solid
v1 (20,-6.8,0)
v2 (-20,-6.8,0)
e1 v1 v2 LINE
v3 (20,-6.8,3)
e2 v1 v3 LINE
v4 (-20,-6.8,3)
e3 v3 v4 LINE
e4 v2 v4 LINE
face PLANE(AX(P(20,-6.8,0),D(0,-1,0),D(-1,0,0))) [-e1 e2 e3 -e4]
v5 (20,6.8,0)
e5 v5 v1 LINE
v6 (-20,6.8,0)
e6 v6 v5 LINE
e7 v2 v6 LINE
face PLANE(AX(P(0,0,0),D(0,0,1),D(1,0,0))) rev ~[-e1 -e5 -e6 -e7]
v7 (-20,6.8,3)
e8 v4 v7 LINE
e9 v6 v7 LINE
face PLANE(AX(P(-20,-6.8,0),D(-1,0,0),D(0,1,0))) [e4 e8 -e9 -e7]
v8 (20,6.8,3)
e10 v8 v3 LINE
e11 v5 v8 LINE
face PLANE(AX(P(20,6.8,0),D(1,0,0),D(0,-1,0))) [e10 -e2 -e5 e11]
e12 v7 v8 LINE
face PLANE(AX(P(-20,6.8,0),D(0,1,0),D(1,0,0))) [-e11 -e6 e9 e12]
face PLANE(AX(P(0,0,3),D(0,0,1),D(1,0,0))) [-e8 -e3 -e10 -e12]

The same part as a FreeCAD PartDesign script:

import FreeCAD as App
import Part
import Sketcher


def add_polygon(sketch, points):
    """Adds a closed chain of lines whose ends are joined by coincident constraints."""
    first, n = sketch.GeometryCount, len(points)
    for a, b in zip(points, points[1:] + points[:1]):
        sketch.addGeometry(Part.LineSegment(App.Vector(*a, 0), App.Vector(*b, 0)), False)
    for i in range(n):
        sketch.addConstraint(Sketcher.Constraint("Coincident", first + i, 2, first + (i + 1) % n, 1))

doc = App.newDocument("Part")
params = doc.addObject("Spreadsheet::Sheet", "Params")
for row, (alias, value) in enumerate([
    ("sketch1_width", "40 mm"),
    ("sketch1_height", "13.6 mm"),
    ("pad1_length", "3 mm"),
], start=1):
    params.set(f"A{row}", alias)
    params.set(f"B{row}", "=" + value)
    params.setAlias(f"B{row}", alias)

body = doc.addObject("PartDesign::Body", "Body")

sketch1 = doc.addObject("Sketcher::SketchObject", "Sketch")
body.addObject(sketch1)
sketch1.AttachmentSupport = (doc.XY_Plane, [""])
sketch1.MapMode = "FlatFace"
add_polygon(sketch1, [(20, 7), (-20, 7), (-20, -7), (20, -7)])
sketch1.addConstraint([
    Sketcher.Constraint("Horizontal", 0),
    Sketcher.Constraint("Vertical", 1),
    Sketcher.Constraint("Horizontal", 2),
    Sketcher.Constraint("Vertical", 3),
    Sketcher.Constraint("Symmetric", 0, 2, 2, 2, -1, 1),
    Sketcher.Constraint("DistanceX", 0, 2, 0, 1, 40.0),
    Sketcher.Constraint("DistanceY", 1, 2, 1, 1, 13.6),
])
sketch1.setExpression("Constraints[9]", "Params.sketch1_width")
sketch1.setExpression("Constraints[10]", "Params.sketch1_height")
pad1 = doc.addObject("PartDesign::Pad", "Pad")
body.addObject(pad1)
pad1.Profile = sketch1
pad1.setExpression("Length", "Params.pad1_length")

doc.recompute()
